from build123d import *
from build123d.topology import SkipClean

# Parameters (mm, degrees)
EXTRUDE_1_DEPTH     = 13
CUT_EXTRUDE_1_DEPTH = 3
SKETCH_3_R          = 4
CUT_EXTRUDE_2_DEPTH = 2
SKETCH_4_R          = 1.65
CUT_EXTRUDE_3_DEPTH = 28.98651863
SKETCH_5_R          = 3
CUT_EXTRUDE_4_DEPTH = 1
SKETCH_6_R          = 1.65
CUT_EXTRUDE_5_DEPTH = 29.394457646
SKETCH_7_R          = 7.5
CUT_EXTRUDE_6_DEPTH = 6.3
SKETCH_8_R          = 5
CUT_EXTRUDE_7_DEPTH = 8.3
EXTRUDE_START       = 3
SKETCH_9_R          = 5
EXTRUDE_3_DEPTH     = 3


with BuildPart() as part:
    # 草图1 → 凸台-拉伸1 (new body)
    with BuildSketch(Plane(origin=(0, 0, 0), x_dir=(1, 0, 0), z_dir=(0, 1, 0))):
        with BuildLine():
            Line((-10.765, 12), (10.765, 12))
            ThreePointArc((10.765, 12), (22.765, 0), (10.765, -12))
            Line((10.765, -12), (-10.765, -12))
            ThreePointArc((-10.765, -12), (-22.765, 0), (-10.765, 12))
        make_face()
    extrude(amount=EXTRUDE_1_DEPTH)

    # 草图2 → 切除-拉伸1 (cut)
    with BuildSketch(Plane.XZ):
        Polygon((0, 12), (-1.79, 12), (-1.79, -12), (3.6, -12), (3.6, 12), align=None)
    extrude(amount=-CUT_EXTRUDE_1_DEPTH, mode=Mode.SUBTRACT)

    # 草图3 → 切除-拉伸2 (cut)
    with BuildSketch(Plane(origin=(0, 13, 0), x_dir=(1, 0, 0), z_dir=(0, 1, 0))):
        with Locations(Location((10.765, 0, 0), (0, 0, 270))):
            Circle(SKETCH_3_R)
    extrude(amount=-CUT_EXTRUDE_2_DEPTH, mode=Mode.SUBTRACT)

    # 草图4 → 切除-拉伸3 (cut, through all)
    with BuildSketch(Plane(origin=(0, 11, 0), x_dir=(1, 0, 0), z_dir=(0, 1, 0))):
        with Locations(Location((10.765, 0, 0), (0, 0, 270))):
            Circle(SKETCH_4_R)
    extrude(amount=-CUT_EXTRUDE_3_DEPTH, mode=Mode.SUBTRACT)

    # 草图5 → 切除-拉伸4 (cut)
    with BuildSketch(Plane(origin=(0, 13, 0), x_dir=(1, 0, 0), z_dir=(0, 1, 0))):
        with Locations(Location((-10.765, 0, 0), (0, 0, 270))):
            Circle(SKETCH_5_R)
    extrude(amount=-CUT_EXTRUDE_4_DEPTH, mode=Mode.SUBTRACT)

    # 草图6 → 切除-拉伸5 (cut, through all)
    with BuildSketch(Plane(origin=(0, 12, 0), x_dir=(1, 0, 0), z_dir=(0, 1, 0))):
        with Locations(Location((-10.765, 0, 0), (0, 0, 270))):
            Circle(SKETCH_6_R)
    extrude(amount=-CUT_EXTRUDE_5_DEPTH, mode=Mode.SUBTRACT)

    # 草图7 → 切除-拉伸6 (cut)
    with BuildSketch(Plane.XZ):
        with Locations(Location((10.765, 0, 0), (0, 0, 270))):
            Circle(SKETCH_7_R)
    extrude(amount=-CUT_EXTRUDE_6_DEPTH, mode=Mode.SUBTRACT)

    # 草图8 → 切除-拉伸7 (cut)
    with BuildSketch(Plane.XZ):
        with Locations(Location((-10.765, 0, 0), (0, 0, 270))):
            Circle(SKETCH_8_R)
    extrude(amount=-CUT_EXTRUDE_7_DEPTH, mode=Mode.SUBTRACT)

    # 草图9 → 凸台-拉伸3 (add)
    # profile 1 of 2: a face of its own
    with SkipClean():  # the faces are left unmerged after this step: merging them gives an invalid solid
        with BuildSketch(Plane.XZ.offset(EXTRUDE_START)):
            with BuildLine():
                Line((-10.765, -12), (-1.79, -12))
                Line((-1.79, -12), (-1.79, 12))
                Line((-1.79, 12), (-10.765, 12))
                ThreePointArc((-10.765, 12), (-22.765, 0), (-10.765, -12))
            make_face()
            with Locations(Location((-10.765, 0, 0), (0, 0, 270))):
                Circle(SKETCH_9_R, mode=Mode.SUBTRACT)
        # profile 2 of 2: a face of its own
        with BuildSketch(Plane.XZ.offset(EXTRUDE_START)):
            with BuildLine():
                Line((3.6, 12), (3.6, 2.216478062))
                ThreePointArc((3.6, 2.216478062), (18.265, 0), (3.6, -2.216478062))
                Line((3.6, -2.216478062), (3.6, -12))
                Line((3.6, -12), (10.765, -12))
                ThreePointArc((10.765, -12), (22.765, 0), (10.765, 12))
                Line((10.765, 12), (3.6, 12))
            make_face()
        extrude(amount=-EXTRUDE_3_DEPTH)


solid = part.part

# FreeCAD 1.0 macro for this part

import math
import FreeCAD as App
import Part
import Sketcher

V = App.Vector


def add_polygon(sketch, points):
    """Adds a closed chain of lines whose ends are joined by coincident constraints."""
    first, n = sketch.GeometryCount, len(points)
    for a, b in zip(points, points[1:] + points[:1]):
        sketch.addGeometry(Part.LineSegment(App.Vector(*a, 0), App.Vector(*b, 0)), False)
    for i in range(n):
        sketch.addConstraint(Sketcher.Constraint("Coincident", first + i, 2, first + (i + 1) % n, 1))

doc = App.newDocument("Part")
body = doc.addObject("PartDesign::Body", "Body")

sketch1 = body.newObject("Sketcher::SketchObject", "Sketch")
sketch1.AttachmentSupport = (doc.getObject("XZ_Plane"), [""])
sketch1.MapMode = "FlatFace"
sketch1.addGeometry([
    Part.LineSegment(V(11, -12, 0), V(-11, -12, 0)),
    Part.ArcOfCircle(Part.Circle(V(-11, 0, 0), V(0, 0, 1), 12), math.radians(90), math.radians(270)),
    Part.LineSegment(V(-11, 12, 0), V(11, 12, 0)),
    Part.ArcOfCircle(Part.Circle(V(11, 0, 0), V(0, 0, 1), 12), math.radians(-90), math.radians(90)),
], False)
sketch1.addConstraint([
    Sketcher.Constraint("Tangent", 0, 2, 1, 2),
    Sketcher.Constraint("Tangent", 1, 1, 2, 1),
    Sketcher.Constraint("Tangent", 2, 2, 3, 2),
    Sketcher.Constraint("Tangent", 3, 1, 0, 1),
    Sketcher.Constraint("Horizontal", 0),
    Sketcher.Constraint("Horizontal", 2),
    Sketcher.Constraint("Symmetric", 1, 3, 3, 3, -1, 1),
    Sketcher.Constraint("Radius", 1, 12.0),
    Sketcher.Constraint("DistanceX", 0, 2, 0, 1, 21.53),
])
pad1 = body.newObject("PartDesign::Pad", "Pad")
pad1.Profile = sketch1
pad1.Length = 13
pad1.Reversed = True

sketch2 = body.newObject("Sketcher::SketchObject", "Sketch001")
sketch2.AttachmentSupport = (doc.getObject("XZ_Plane"), [""])
sketch2.MapMode = "FlatFace"
add_polygon(sketch2, [(-2, 12), (-2, -12), (4, -12), (4, 12)])
sketch2.addConstraint([
    Sketcher.Constraint("Vertical", 0),
    Sketcher.Constraint("Horizontal", 1),
    Sketcher.Constraint("Vertical", 2),
    Sketcher.Constraint("Horizontal", 3),
    Sketcher.Constraint("DistanceY", 0, 2, 0, 1, 24.0),
    Sketcher.Constraint("DistanceY", 0, 2, -1, 1, 12.0),
    Sketcher.Constraint("DistanceX", 1, 1, 1, 2, 5.39),
    Sketcher.Constraint("DistanceX", -1, 1, 1, 2, 3.6),
])
pocket1 = body.newObject("PartDesign::Pocket", "Pocket")
pocket1.Profile = sketch2
pocket1.Length = 3

sketch3 = body.newObject("Sketcher::SketchObject", "Sketch002")
sketch3.AttachmentSupport = (doc.getObject("XZ_Plane"), [""])
sketch3.MapMode = "FlatFace"
sketch3.AttachmentOffset = App.Placement(V(0, 0, -13), App.Rotation())
sketch3.addGeometry(Part.Circle(V(10.8, 0, 0), V(0, 0, 1), 4), False)
sketch3.addConstraint([
    Sketcher.Constraint("PointOnObject", 0, 3, -1),
    Sketcher.Constraint("Diameter", 0, 8.0),
    Sketcher.Constraint("DistanceX", -1, 1, 0, 3, 10.765),
])
pocket2 = body.newObject("PartDesign::Pocket", "Pocket001")
pocket2.Profile = sketch3
pocket2.Length = 2
pocket2.Reversed = True

sketch4 = body.newObject("Sketcher::SketchObject", "Sketch003")
sketch4.AttachmentSupport = (doc.getObject("XZ_Plane"), [""])
sketch4.MapMode = "FlatFace"
sketch4.AttachmentOffset = App.Placement(V(0, 0, -11), App.Rotation())
sketch4.addGeometry(Part.Circle(V(10.8, 0, 0), V(0, 0, 1), 1.6), False)
sketch4.addConstraint([
    Sketcher.Constraint("PointOnObject", 0, 3, -1),
    Sketcher.Constraint("Diameter", 0, 3.3),
    Sketcher.Constraint("DistanceX", -1, 1, 0, 3, 10.765),
])
pocket3 = body.newObject("PartDesign::Pocket", "Pocket002")
pocket3.Profile = sketch4
pocket3.Type = "ThroughAll"
pocket3.Reversed = True

sketch5 = body.newObject("Sketcher::SketchObject", "Sketch004")
sketch5.AttachmentSupport = (doc.getObject("XZ_Plane"), [""])
sketch5.MapMode = "FlatFace"
sketch5.AttachmentOffset = App.Placement(V(0, 0, -13), App.Rotation())
sketch5.addGeometry(Part.Circle(V(-10.8, 0, 0), V(0, 0, 1), 3), False)
sketch5.addConstraint([
    Sketcher.Constraint("PointOnObject", 0, 3, -1),
    Sketcher.Constraint("Diameter", 0, 6.0),
    Sketcher.Constraint("DistanceX", 0, 3, -1, 1, 10.765),
])
pocket4 = body.newObject("PartDesign::Pocket", "Pocket003")
pocket4.Profile = sketch5
pocket4.Length = 1
pocket4.Reversed = True

sketch6 = body.newObject("Sketcher::SketchObject", "Sketch005")
sketch6.AttachmentSupport = (doc.getObject("XZ_Plane"), [""])
sketch6.MapMode = "FlatFace"
sketch6.AttachmentOffset = App.Placement(V(0, 0, -12), App.Rotation())
sketch6.addGeometry(Part.Circle(V(-10.8, 0, 0), V(0, 0, 1), 1.6), False)
sketch6.addConstraint([
    Sketcher.Constraint("PointOnObject", 0, 3, -1),
    Sketcher.Constraint("Diameter", 0, 3.3),
    Sketcher.Constraint("DistanceX", 0, 3, -1, 1, 10.765),
])
pocket5 = body.newObject("PartDesign::Pocket", "Pocket004")
pocket5.Profile = sketch6
pocket5.Type = "ThroughAll"
pocket5.Reversed = True

sketch7 = body.newObject("Sketcher::SketchObject", "Sketch006")
sketch7.AttachmentSupport = (doc.getObject("XZ_Plane"), [""])
sketch7.MapMode = "FlatFace"
sketch7.addGeometry(Part.Circle(V(11, 0, 0), V(0, 0, 1), 8), False)
sketch7.addConstraint([
    Sketcher.Constraint("PointOnObject", 0, 3, -1),
    Sketcher.Constraint("Diameter", 0, 15.0),
    Sketcher.Constraint("DistanceX", -1, 1, 0, 3, 10.765),
])
pocket6 = body.newObject("PartDesign::Pocket", "Pocket005")
pocket6.Profile = sketch7
pocket6.Length = 6.3

sketch8 = body.newObject("Sketcher::SketchObject", "Sketch007")
sketch8.AttachmentSupport = (doc.getObject("XZ_Plane"), [""])
sketch8.MapMode = "FlatFace"
sketch8.addGeometry(Part.Circle(V(-11, 0, 0), V(0, 0, 1), 5), False)
sketch8.addConstraint([
    Sketcher.Constraint("PointOnObject", 0, 3, -1),
    Sketcher.Constraint("Diameter", 0, 10.0),
    Sketcher.Constraint("DistanceX", 0, 3, -1, 1, 10.765),
])
pocket7 = body.newObject("PartDesign::Pocket", "Pocket006")
pocket7.Profile = sketch8
pocket7.Length = 8.3

sketch9 = body.newObject("Sketcher::SketchObject", "Sketch008")
sketch9.AttachmentSupport = (doc.getObject("XZ_Plane"), [""])
sketch9.MapMode = "FlatFace"
sketch9.AttachmentOffset = App.Placement(V(0, 0, 3), App.Rotation())
sketch9.addGeometry([
    Part.LineSegment(V(-10.8, -12, 0), V(-1.8, -12, 0)),
    Part.LineSegment(V(-1.8, -12, 0), V(-1.8, 12, 0)),
    Part.LineSegment(V(-1.8, 12, 0), V(-10.8, 12, 0)),
    Part.ArcOfCircle(Part.Circle(V(-10.8, 0, 0), V(0, 0, 1), 12), math.radians(90), math.radians(270)),
    Part.Circle(V(-10.8, 0, 0), V(0, 0, 1), 5),
    Part.LineSegment(V(3.6, 12, 0), V(3.6, 2.2, 0)),
    Part.ArcOfCircle(Part.Circle(V(10.8, 0, 0), V(0, 0, 1), 7.5), math.radians(-163), math.radians(163)),
    Part.LineSegment(V(3.6, -2.2, 0), V(3.6, -12, 0)),
    Part.LineSegment(V(3.6, -12, 0), V(10.8, -12, 0)),
    Part.ArcOfCircle(Part.Circle(V(10.8, 0, 0), V(0, 0, 1), 12), math.radians(-90), math.radians(90)),
    Part.LineSegment(V(10.8, 12, 0), V(3.6, 12, 0)),
], False)
sketch9.addConstraint([
    Sketcher.Constraint("Coincident", 0, 2, 1, 1),
    Sketcher.Constraint("Coincident", 1, 2, 2, 1),
    Sketcher.Constraint("Tangent", 2, 2, 3, 1),
    Sketcher.Constraint("Tangent", 3, 2, 0, 1),
    Sketcher.Constraint("Coincident", 5, 2, 6, 2),
    Sketcher.Constraint("Coincident", 6, 1, 7, 1),
    Sketcher.Constraint("Coincident", 7, 2, 8, 1),
    Sketcher.Constraint("Tangent", 8, 2, 9, 1),
    Sketcher.Constraint("Tangent", 9, 2, 10, 1),
    Sketcher.Constraint("Coincident", 10, 2, 5, 1),
    Sketcher.Constraint("Horizontal", 0),
    Sketcher.Constraint("Vertical", 1),
    Sketcher.Constraint("Horizontal", 2),
    Sketcher.Constraint("Vertical", 5),
    Sketcher.Constraint("Vertical", 7),
    Sketcher.Constraint("Horizontal", 8),
    Sketcher.Constraint("Horizontal", 10),
    Sketcher.Constraint("Coincident", 4, 3, 3, 3),
    Sketcher.Constraint("Coincident", 9, 3, 6, 3),
    Sketcher.Constraint("Equal", 3, 9),
    Sketcher.Constraint("Symmetric", 3, 3, 6, 3, -1, 1),
    Sketcher.Constraint("Symmetric", 5, 2, 6, 1, -1),
    Sketcher.Constraint("Diameter", 4, 10.0),
    Sketcher.Constraint("Radius", 3, 12.0),
    Sketcher.Constraint("Radius", 6, 7.5),
    Sketcher.Constraint("DistanceX", -1, 1, 5, 2, 3.6),
    Sketcher.Constraint("DistanceX", 0, 1, 0, 2, 8.975),
    Sketcher.Constraint("DistanceX", 8, 1, 8, 2, 7.165),
])
pad2 = body.newObject("PartDesign::Pad", "Pad001")
pad2.Profile = sketch9
pad2.Length = 3
pad2.Reversed = True

doc.recompute()
